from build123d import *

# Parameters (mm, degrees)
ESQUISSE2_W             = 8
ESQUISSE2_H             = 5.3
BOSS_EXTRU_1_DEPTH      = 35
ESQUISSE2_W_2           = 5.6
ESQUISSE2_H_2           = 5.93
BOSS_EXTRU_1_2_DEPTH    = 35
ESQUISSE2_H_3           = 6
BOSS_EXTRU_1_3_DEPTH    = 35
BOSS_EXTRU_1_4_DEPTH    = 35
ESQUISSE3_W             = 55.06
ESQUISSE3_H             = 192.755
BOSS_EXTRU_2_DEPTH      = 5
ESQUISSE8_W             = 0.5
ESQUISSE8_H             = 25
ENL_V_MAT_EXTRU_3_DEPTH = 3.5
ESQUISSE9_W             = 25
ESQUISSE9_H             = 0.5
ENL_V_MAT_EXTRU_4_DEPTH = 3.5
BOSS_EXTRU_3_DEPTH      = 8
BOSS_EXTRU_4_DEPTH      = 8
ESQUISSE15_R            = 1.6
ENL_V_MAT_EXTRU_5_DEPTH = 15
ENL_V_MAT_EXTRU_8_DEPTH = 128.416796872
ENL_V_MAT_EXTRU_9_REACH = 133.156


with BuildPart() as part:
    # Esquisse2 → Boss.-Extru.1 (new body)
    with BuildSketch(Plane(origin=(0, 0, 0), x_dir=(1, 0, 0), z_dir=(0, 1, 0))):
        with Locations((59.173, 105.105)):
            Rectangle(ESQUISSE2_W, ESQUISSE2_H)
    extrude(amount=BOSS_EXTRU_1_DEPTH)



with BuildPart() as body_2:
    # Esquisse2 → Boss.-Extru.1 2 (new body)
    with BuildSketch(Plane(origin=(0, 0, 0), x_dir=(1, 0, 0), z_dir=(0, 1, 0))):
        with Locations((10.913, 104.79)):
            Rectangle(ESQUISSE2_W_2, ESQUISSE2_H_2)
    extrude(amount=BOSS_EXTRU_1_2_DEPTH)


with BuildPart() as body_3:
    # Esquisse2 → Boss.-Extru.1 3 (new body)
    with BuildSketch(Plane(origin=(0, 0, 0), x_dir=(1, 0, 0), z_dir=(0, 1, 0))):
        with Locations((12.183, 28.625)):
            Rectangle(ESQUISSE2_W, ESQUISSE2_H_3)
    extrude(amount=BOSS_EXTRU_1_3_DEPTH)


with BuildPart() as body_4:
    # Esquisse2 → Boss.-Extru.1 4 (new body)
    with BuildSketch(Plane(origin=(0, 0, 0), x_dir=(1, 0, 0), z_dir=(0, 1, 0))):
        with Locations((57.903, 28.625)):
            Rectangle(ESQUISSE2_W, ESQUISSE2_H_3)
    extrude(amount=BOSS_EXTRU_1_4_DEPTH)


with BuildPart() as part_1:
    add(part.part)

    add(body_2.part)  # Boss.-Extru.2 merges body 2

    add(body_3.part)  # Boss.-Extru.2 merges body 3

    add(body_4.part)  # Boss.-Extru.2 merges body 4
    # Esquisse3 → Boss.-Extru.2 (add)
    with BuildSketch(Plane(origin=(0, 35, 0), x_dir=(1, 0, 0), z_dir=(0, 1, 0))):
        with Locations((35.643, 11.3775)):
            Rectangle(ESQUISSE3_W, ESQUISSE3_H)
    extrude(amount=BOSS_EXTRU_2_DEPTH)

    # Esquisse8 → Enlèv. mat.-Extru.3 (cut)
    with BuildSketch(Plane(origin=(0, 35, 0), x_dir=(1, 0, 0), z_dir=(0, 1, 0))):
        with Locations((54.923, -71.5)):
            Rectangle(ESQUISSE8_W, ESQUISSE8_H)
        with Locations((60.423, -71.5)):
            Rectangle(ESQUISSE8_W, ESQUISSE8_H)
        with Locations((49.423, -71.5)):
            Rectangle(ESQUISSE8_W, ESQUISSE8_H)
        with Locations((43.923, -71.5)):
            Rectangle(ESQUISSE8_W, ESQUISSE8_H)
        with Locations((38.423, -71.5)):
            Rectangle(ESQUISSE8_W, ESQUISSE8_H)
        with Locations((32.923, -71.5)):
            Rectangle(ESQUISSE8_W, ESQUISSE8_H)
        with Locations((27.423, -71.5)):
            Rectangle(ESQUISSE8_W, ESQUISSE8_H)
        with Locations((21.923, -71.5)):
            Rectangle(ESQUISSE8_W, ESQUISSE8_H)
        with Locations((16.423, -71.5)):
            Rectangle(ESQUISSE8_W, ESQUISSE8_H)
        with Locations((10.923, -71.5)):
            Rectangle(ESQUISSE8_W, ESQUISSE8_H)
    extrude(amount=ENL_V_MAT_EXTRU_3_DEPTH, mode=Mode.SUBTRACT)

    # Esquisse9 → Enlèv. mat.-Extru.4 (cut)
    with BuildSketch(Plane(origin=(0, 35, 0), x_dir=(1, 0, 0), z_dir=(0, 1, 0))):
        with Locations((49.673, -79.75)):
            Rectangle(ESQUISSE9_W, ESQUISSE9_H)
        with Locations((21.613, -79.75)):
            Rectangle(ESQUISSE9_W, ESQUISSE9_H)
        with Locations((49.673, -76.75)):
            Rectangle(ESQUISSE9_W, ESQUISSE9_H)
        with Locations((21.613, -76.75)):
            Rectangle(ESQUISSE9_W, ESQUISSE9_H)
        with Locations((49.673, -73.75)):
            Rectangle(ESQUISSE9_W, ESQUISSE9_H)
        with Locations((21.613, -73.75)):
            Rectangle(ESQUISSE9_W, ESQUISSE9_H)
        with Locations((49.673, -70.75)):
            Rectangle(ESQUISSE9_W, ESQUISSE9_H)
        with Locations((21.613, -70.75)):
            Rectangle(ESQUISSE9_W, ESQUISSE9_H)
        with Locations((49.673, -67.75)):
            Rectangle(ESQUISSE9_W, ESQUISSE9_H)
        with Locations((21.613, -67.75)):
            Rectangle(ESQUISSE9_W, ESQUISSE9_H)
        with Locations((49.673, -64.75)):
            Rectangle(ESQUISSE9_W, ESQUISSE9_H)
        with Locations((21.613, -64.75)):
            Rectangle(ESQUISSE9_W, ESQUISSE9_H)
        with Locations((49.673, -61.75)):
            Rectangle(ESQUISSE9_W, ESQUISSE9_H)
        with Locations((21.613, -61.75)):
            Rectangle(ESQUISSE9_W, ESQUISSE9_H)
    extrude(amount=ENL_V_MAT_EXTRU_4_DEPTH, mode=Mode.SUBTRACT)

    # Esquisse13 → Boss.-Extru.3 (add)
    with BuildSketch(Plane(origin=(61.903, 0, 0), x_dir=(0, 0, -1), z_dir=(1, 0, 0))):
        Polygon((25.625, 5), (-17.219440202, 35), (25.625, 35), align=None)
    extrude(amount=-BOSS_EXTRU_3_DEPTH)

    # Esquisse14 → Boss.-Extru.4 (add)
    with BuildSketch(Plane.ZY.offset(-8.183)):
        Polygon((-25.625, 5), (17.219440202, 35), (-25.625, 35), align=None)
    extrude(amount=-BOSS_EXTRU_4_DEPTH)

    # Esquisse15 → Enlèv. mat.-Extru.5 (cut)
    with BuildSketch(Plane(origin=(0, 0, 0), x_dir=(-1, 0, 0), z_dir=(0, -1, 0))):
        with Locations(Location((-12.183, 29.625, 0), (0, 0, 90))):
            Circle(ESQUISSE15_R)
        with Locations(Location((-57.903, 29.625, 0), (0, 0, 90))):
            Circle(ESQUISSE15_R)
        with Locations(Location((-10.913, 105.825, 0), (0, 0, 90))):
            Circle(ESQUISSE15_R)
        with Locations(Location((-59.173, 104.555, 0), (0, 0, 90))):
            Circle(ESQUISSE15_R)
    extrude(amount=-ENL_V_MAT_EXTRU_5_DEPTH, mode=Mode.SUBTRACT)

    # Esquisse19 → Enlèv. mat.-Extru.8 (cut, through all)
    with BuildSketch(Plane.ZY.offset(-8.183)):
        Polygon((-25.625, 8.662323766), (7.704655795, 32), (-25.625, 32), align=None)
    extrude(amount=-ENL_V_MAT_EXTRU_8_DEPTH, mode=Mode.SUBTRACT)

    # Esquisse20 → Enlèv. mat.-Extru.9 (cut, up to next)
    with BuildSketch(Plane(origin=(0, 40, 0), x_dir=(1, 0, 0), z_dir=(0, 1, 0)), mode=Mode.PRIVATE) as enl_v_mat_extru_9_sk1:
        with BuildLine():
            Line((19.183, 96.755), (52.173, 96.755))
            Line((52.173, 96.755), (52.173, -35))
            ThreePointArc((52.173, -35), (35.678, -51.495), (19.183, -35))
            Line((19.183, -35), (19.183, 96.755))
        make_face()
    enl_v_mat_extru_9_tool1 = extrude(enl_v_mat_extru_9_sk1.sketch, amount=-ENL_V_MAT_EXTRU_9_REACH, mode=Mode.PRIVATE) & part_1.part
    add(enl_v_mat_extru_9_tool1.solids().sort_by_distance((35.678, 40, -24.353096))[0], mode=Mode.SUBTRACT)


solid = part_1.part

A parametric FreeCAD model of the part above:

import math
import FreeCAD as App
import Part
import Sketcher

V = App.Vector
Q = App.Units.Quantity

doc = App.newDocument("Part")
body = doc.addObject("PartDesign::Body", "Body")

sketch1 = body.newObject("Sketcher::SketchObject", "Sketch")
sketch1.AttachmentSupport = (doc.getObject("XZ_Plane"), [""])
sketch1.MapMode = "FlatFace"
sketch1.addGeometry(Part.LineSegment(V(55, -108, 0), V(55, -102, 0)), False)
sketch1.addGeometry(Part.LineSegment(V(55, -102, 0), V(63, -102, 0)), False)
sketch1.addGeometry(Part.LineSegment(V(63, -102, 0), V(63, -108, 0)), False)
sketch1.addGeometry(Part.LineSegment(V(63, -108, 0), V(55, -108, 0)), False)
sketch1.addConstraint(Sketcher.Constraint("Coincident", 0, 2, 1, 1))
sketch1.addConstraint(Sketcher.Constraint("Coincident", 1, 2, 2, 1))
sketch1.addConstraint(Sketcher.Constraint("Coincident", 2, 2, 3, 1))
sketch1.addConstraint(Sketcher.Constraint("Coincident", 3, 2, 0, 1))
sketch1.addConstraint(Sketcher.Constraint("Vertical", 0))
sketch1.addConstraint(Sketcher.Constraint("Horizontal", 1))
sketch1.addConstraint(Sketcher.Constraint("Vertical", 2))
sketch1.addConstraint(Sketcher.Constraint("Horizontal", 3))
sketch1.addConstraint(Sketcher.Constraint("DistanceX", 1, 1, 1, 2, 8.0))
sketch1.addConstraint(Sketcher.Constraint("DistanceY", 0, 1, 0, 2, 5.3))
sketch1.addConstraint(Sketcher.Constraint("DistanceX", -1, 1, 0, 2, 55.173))
sketch1.addConstraint(Sketcher.Constraint("DistanceY", 0, 2, -1, 1, 102.455))
pad1 = body.newObject("PartDesign::Pad", "Pad")
pad1.Profile = sketch1
pad1.Length = 35
pad1.Reversed = True
body2 = doc.addObject("PartDesign::Body", "Body001")

sketch2 = body2.newObject("Sketcher::SketchObject", "Sketch001")
sketch2.AttachmentSupport = (doc.getObject("XZ_Plane001"), [""])
sketch2.MapMode = "FlatFace"
sketch2.addGeometry(Part.LineSegment(V(8, -108, 0), V(8, -102, 0)), False)
sketch2.addGeometry(Part.LineSegment(V(8, -102, 0), V(14, -102, 0)), False)
sketch2.addGeometry(Part.LineSegment(V(14, -102, 0), V(14, -108, 0)), False)
sketch2.addGeometry(Part.LineSegment(V(14, -108, 0), V(8, -108, 0)), False)
sketch2.addConstraint(Sketcher.Constraint("Coincident", 0, 2, 1, 1))
sketch2.addConstraint(Sketcher.Constraint("Coincident", 1, 2, 2, 1))
sketch2.addConstraint(Sketcher.Constraint("Coincident", 2, 2, 3, 1))
sketch2.addConstraint(Sketcher.Constraint("Coincident", 3, 2, 0, 1))
sketch2.addConstraint(Sketcher.Constraint("Vertical", 0))
sketch2.addConstraint(Sketcher.Constraint("Horizontal", 1))
sketch2.addConstraint(Sketcher.Constraint("Vertical", 2))
sketch2.addConstraint(Sketcher.Constraint("Horizontal", 3))
sketch2.addConstraint(Sketcher.Constraint("DistanceX", 1, 1, 1, 2, 5.6))
sketch2.addConstraint(Sketcher.Constraint("DistanceY", 0, 1, 0, 2, 5.93))
sketch2.addConstraint(Sketcher.Constraint("DistanceX", -1, 1, 0, 2, 8.113))
sketch2.addConstraint(Sketcher.Constraint("DistanceY", 0, 2, -1, 1, 101.825))
pad2 = body2.newObject("PartDesign::Pad", "Pad001")
pad2.Profile = sketch2
pad2.Length = 35
pad2.Reversed = True
body3 = doc.addObject("PartDesign::Body", "Body002")

sketch3 = body3.newObject("Sketcher::SketchObject", "Sketch002")
sketch3.AttachmentSupport = (doc.getObject("XZ_Plane002"), [""])
sketch3.MapMode = "FlatFace"
sketch3.addGeometry(Part.LineSegment(V(8, -32, 0), V(8, -26, 0)), False)
sketch3.addGeometry(Part.LineSegment(V(8, -26, 0), V(16, -26, 0)), False)
sketch3.addGeometry(Part.LineSegment(V(16, -26, 0), V(16, -32, 0)), False)
sketch3.addGeometry(Part.LineSegment(V(16, -32, 0), V(8, -32, 0)), False)
sketch3.addConstraint(Sketcher.Constraint("Coincident", 0, 2, 1, 1))
sketch3.addConstraint(Sketcher.Constraint("Coincident", 1, 2, 2, 1))
sketch3.addConstraint(Sketcher.Constraint("Coincident", 2, 2, 3, 1))
sketch3.addConstraint(Sketcher.Constraint("Coincident", 3, 2, 0, 1))
sketch3.addConstraint(Sketcher.Constraint("Vertical", 0))
sketch3.addConstraint(Sketcher.Constraint("Horizontal", 1))
sketch3.addConstraint(Sketcher.Constraint("Vertical", 2))
sketch3.addConstraint(Sketcher.Constraint("Horizontal", 3))
sketch3.addConstraint(Sketcher.Constraint("DistanceX", 1, 1, 1, 2, 8.0))
sketch3.addConstraint(Sketcher.Constraint("DistanceY", 0, 1, 0, 2, 6.0))
sketch3.addConstraint(Sketcher.Constraint("DistanceX", -1, 1, 0, 2, 8.183))
sketch3.addConstraint(Sketcher.Constraint("DistanceY", 0, 2, -1, 1, 25.625))
pad3 = body3.newObject("PartDesign::Pad", "Pad002")
pad3.Profile = sketch3
pad3.Length = 35
pad3.Reversed = True
body4 = doc.addObject("PartDesign::Body", "Body003")

sketch4 = body4.newObject("Sketcher::SketchObject", "Sketch003")
sketch4.AttachmentSupport = (doc.getObject("XZ_Plane003"), [""])
sketch4.MapMode = "FlatFace"
sketch4.addGeometry(Part.LineSegment(V(54, -32, 0), V(54, -26, 0)), False)
sketch4.addGeometry(Part.LineSegment(V(54, -26, 0), V(62, -26, 0)), False)
sketch4.addGeometry(Part.LineSegment(V(62, -26, 0), V(62, -32, 0)), False)
sketch4.addGeometry(Part.LineSegment(V(62, -32, 0), V(54, -32, 0)), False)
sketch4.addConstraint(Sketcher.Constraint("Coincident", 0, 2, 1, 1))
sketch4.addConstraint(Sketcher.Constraint("Coincident", 1, 2, 2, 1))
sketch4.addConstraint(Sketcher.Constraint("Coincident", 2, 2, 3, 1))
sketch4.addConstraint(Sketcher.Constraint("Coincident", 3, 2, 0, 1))
sketch4.addConstraint(Sketcher.Constraint("Vertical", 0))
sketch4.addConstraint(Sketcher.Constraint("Horizontal", 1))
sketch4.addConstraint(Sketcher.Constraint("Vertical", 2))
sketch4.addConstraint(Sketcher.Constraint("Horizontal", 3))
sketch4.addConstraint(Sketcher.Constraint("DistanceX", 1, 1, 1, 2, 8.0))
sketch4.addConstraint(Sketcher.Constraint("DistanceY", 0, 1, 0, 2, 6.0))
sketch4.addConstraint(Sketcher.Constraint("DistanceX", -1, 1, 0, 2, 53.903))
sketch4.addConstraint(Sketcher.Constraint("DistanceY", 0, 2, -1, 1, 25.625))
pad4 = body4.newObject("PartDesign::Pad", "Pad003")
pad4.Profile = sketch4
pad4.Length = 35
pad4.Reversed = True
body.AllowCompound = True
doc.recompute()

boolean = body.newObject("PartDesign::Boolean", "Boolean")
boolean.Type = "Fuse"
boolean.addObjects([body2])
doc.recompute()

boolean2 = body.newObject("PartDesign::Boolean", "Boolean001")
boolean2.Type = "Fuse"
boolean2.addObjects([body3])
doc.recompute()

boolean3 = body.newObject("PartDesign::Boolean", "Boolean002")
boolean3.Type = "Fuse"
boolean3.addObjects([body4])

sketch5 = body.newObject("Sketcher::SketchObject", "Sketch004")
sketch5.AttachmentSupport = (doc.getObject("XZ_Plane"), [""])
sketch5.MapMode = "FlatFace"
sketch5.AttachmentOffset = App.Placement(V(0, 0, -35), App.Rotation())
sketch5.addGeometry(Part.LineSegment(V(8, -108, 0), V(8, 85, 0)), False)
sketch5.addGeometry(Part.LineSegment(V(8, 85, 0), V(63, 85, 0)), False)
sketch5.addGeometry(Part.LineSegment(V(63, 85, 0), V(63, -108, 0)), False)
sketch5.addGeometry(Part.LineSegment(V(63, -108, 0), V(8, -108, 0)), False)
sketch5.addConstraint(Sketcher.Constraint("Coincident", 0, 2, 1, 1))
sketch5.addConstraint(Sketcher.Constraint("Coincident", 1, 2, 2, 1))
sketch5.addConstraint(Sketcher.Constraint("Coincident", 2, 2, 3, 1))
sketch5.addConstraint(Sketcher.Constraint("Coincident", 3, 2, 0, 1))
sketch5.addConstraint(Sketcher.Constraint("Vertical", 0))
sketch5.addConstraint(Sketcher.Constraint("Horizontal", 1))
sketch5.addConstraint(Sketcher.Constraint("Vertical", 2))
sketch5.addConstraint(Sketcher.Constraint("Horizontal", 3))
sketch5.addConstraint(Sketcher.Constraint("DistanceY", -1, 1, 0, 2, 85.0))
sketch5.addConstraint(Sketcher.Constraint("DistanceX", 1, 1, 1, 2, 55.06))
sketch5.addConstraint(Sketcher.Constraint("DistanceY", 0, 1, 0, 2, 192.755))
sketch5.addConstraint(Sketcher.Constraint("DistanceX", -1, 1, 0, 2, 8.113))
pad5 = body.newObject("PartDesign::Pad", "Pad004")
pad5.Profile = sketch5
pad5.Length = 5
pad5.Reversed = True

sketch6 = body.newObject("Sketcher::SketchObject", "Sketch005")
sketch6.AttachmentSupport = (doc.getObject("XZ_Plane"), [""])
sketch6.MapMode = "FlatFace"
sketch6.AttachmentOffset = App.Placement(V(0, 0, -35), App.Rotation())
sketch6.addGeometry(Part.LineSegment(V(54.7, 59, 0), V(54.7, 84, 0)), False)
sketch6.addGeometry(Part.LineSegment(V(54.7, 84, 0), V(55.2, 84, 0)), False)
sketch6.addGeometry(Part.LineSegment(V(55.2, 84, 0), V(55.2, 59, 0)), False)
sketch6.addGeometry(Part.LineSegment(V(55.2, 59, 0), V(54.7, 59, 0)), False)
sketch6.addGeometry(Part.LineSegment(V(60.2, 59, 0), V(60.2, 84, 0)), False)
sketch6.addGeometry(Part.LineSegment(V(60.2, 84, 0), V(60.7, 84, 0)), False)
sketch6.addGeometry(Part.LineSegment(V(60.7, 84, 0), V(60.7, 59, 0)), False)
sketch6.addGeometry(Part.LineSegment(V(60.7, 59, 0), V(60.2, 59, 0)), False)
sketch6.addGeometry(Part.LineSegment(V(49.2, 59, 0), V(49.2, 84, 0)), False)
sketch6.addGeometry(Part.LineSegment(V(49.2, 84, 0), V(49.7, 84, 0)), False)
sketch6.addGeometry(Part.LineSegment(V(49.7, 84, 0), V(49.7, 59, 0)), False)
sketch6.addGeometry(Part.LineSegment(V(49.7, 59, 0), V(49.2, 59, 0)), False)
sketch6.addGeometry(Part.LineSegment(V(43.7, 59, 0), V(43.7, 84, 0)), False)
sketch6.addGeometry(Part.LineSegment(V(43.7, 84, 0), V(44.2, 84, 0)), False)
sketch6.addGeometry(Part.LineSegment(V(44.2, 84, 0), V(44.2, 59, 0)), False)
sketch6.addGeometry(Part.LineSegment(V(44.2, 59, 0), V(43.7, 59, 0)), False)
sketch6.addGeometry(Part.LineSegment(V(38.2, 59, 0), V(38.2, 84, 0)), False)
sketch6.addGeometry(Part.LineSegment(V(38.2, 84, 0), V(38.7, 84, 0)), False)
sketch6.addGeometry(Part.LineSegment(V(38.7, 84, 0), V(38.7, 59, 0)), False)
sketch6.addGeometry(Part.LineSegment(V(38.7, 59, 0), V(38.2, 59, 0)), False)
sketch6.addGeometry(Part.LineSegment(V(32.7, 59, 0), V(32.7, 84, 0)), False)
sketch6.addGeometry(Part.LineSegment(V(32.7, 84, 0), V(33.2, 84, 0)), False)
sketch6.addGeometry(Part.LineSegment(V(33.2, 84, 0), V(33.2, 59, 0)), False)
sketch6.addGeometry(Part.LineSegment(V(33.2, 59, 0), V(32.7, 59, 0)), False)
sketch6.addGeometry(Part.LineSegment(V(27.2, 59, 0), V(27.2, 84, 0)), False)
sketch6.addGeometry(Part.LineSegment(V(27.2, 84, 0), V(27.7, 84, 0)), False)
sketch6.addGeometry(Part.LineSegment(V(27.7, 84, 0), V(27.7, 59, 0)), False)
sketch6.addGeometry(Part.LineSegment(V(27.7, 59, 0), V(27.2, 59, 0)), False)
sketch6.addGeometry(Part.LineSegment(V(21.7, 59, 0), V(21.7, 84, 0)), False)
sketch6.addGeometry(Part.LineSegment(V(21.7, 84, 0), V(22.2, 84, 0)), False)
sketch6.addGeometry(Part.LineSegment(V(22.2, 84, 0), V(22.2, 59, 0)), False)
sketch6.addGeometry(Part.LineSegment(V(22.2, 59, 0), V(21.7, 59, 0)), False)
sketch6.addGeometry(Part.LineSegment(V(16.2, 59, 0), V(16.2, 84, 0)), False)
sketch6.addGeometry(Part.LineSegment(V(16.2, 84, 0), V(16.7, 84, 0)), False)
sketch6.addGeometry(Part.LineSegment(V(16.7, 84, 0), V(16.7, 59, 0)), False)
sketch6.addGeometry(Part.LineSegment(V(16.7, 59, 0), V(16.2, 59, 0)), False)
sketch6.addGeometry(Part.LineSegment(V(10.7, 59, 0), V(10.7, 84, 0)), False)
sketch6.addGeometry(Part.LineSegment(V(10.7, 84, 0), V(11.2, 84, 0)), False)
sketch6.addGeometry(Part.LineSegment(V(11.2, 84, 0), V(11.2, 59, 0)), False)
sketch6.addGeometry(Part.LineSegment(V(11.2, 59, 0), V(10.7, 59, 0)), False)
sketch6.addConstraint(Sketcher.Constraint("Coincident", 0, 2, 1, 1))
sketch6.addConstraint(Sketcher.Constraint("Coincident", 1, 2, 2, 1))
sketch6.addConstraint(Sketcher.Constraint("Coincident", 2, 2, 3, 1))
sketch6.addConstraint(Sketcher.Constraint("Coincident", 3, 2, 0, 1))
sketch6.addConstraint(Sketcher.Constraint("Coincident", 4, 2, 5, 1))
sketch6.addConstraint(Sketcher.Constraint("Coincident", 5, 2, 6, 1))
sketch6.addConstraint(Sketcher.Constraint("Coincident", 6, 2, 7, 1))
sketch6.addConstraint(Sketcher.Constraint("Coincident", 7, 2, 4, 1))
sketch6.addConstraint(Sketcher.Constraint("Coincident", 8, 2, 9, 1))
sketch6.addConstraint(Sketcher.Constraint("Coincident", 9, 2, 10, 1))
sketch6.addConstraint(Sketcher.Constraint("Coincident", 10, 2, 11, 1))
sketch6.addConstraint(Sketcher.Constraint("Coincident", 11, 2, 8, 1))
sketch6.addConstraint(Sketcher.Constraint("Coincident", 12, 2, 13, 1))
sketch6.addConstraint(Sketcher.Constraint("Coincident", 13, 2, 14, 1))
sketch6.addConstraint(Sketcher.Constraint("Coincident", 14, 2, 15, 1))
sketch6.addConstraint(Sketcher.Constraint("Coincident", 15, 2, 12, 1))
sketch6.addConstraint(Sketcher.Constraint("Coincident", 16, 2, 17, 1))
sketch6.addConstraint(Sketcher.Constraint("Coincident", 17, 2, 18, 1))
sketch6.addConstraint(Sketcher.Constraint("Coincident", 18, 2, 19, 1))
sketch6.addConstraint(Sketcher.Constraint("Coincident", 19, 2, 16, 1))
sketch6.addConstraint(Sketcher.Constraint("Coincident", 20, 2, 21, 1))
sketch6.addConstraint(Sketcher.Constraint("Coincident", 21, 2, 22, 1))
sketch6.addConstraint(Sketcher.Constraint("Coincident", 22, 2, 23, 1))
sketch6.addConstraint(Sketcher.Constraint("Coincident", 23, 2, 20, 1))
sketch6.addConstraint(Sketcher.Constraint("Coincident", 24, 2, 25, 1))
sketch6.addConstraint(Sketcher.Constraint("Coincident", 25, 2, 26, 1))
sketch6.addConstraint(Sketcher.Constraint("Coincident", 26, 2, 27, 1))
sketch6.addConstraint(Sketcher.Constraint("Coincident", 27, 2, 24, 1))
sketch6.addConstraint(Sketcher.Constraint("Coincident", 28, 2, 29, 1))
sketch6.addConstraint(Sketcher.Constraint("Coincident", 29, 2, 30, 1))
sketch6.addConstraint(Sketcher.Constraint("Coincident", 30, 2, 31, 1))
sketch6.addConstraint(Sketcher.Constraint("Coincident", 31, 2, 28, 1))
sketch6.addConstraint(Sketcher.Constraint("Coincident", 32, 2, 33, 1))
sketch6.addConstraint(Sketcher.Constraint("Coincident", 33, 2, 34, 1))
sketch6.addConstraint(Sketcher.Constraint("Coincident", 34, 2, 35, 1))
sketch6.addConstraint(Sketcher.Constraint("Coincident", 35, 2, 32, 1))
sketch6.addConstraint(Sketcher.Constraint("Coincident", 36, 2, 37, 1))
sketch6.addConstraint(Sketcher.Constraint("Coincident", 37, 2, 38, 1))
sketch6.addConstraint(Sketcher.Constraint("Coincident", 38, 2, 39, 1))
sketch6.addConstraint(Sketcher.Constraint("Coincident", 39, 2, 36, 1))
sketch6.addConstraint(Sketcher.Constraint("Vertical", 0))
sketch6.addConstraint(Sketcher.Constraint("Horizontal", 1))
sketch6.addConstraint(Sketcher.Constraint("Vertical", 2))
sketch6.addConstraint(Sketcher.Constraint("Horizontal", 3))
sketch6.addConstraint(Sketcher.Constraint("Vertical", 4))
sketch6.addConstraint(Sketcher.Constraint("Horizontal", 5))
sketch6.addConstraint(Sketcher.Constraint("Vertical", 6))
sketch6.addConstraint(Sketcher.Constraint("Horizontal", 7))
sketch6.addConstraint(Sketcher.Constraint("Vertical", 8))
sketch6.addConstraint(Sketcher.Constraint("Horizontal", 9))
sketch6.addConstraint(Sketcher.Constraint("Vertical", 10))
sketch6.addConstraint(Sketcher.Constraint("Horizontal", 11))
sketch6.addConstraint(Sketcher.Constraint("Vertical", 12))
sketch6.addConstraint(Sketcher.Constraint("Horizontal", 13))
sketch6.addConstraint(Sketcher.Constraint("Vertical", 14))
sketch6.addConstraint(Sketcher.Constraint("Horizontal", 15))
sketch6.addConstraint(Sketcher.Constraint("Vertical", 16))
sketch6.addConstraint(Sketcher.Constraint("Horizontal", 17))
sketch6.addConstraint(Sketcher.Constraint("Vertical", 18))
sketch6.addConstraint(Sketcher.Constraint("Horizontal", 19))
sketch6.addConstraint(Sketcher.Constraint("Vertical", 20))
sketch6.addConstraint(Sketcher.Constraint("Horizontal", 21))
sketch6.addConstraint(Sketcher.Constraint("Vertical", 22))
sketch6.addConstraint(Sketcher.Constraint("Horizontal", 23))
sketch6.addConstraint(Sketcher.Constraint("Vertical", 24))
sketch6.addConstraint(Sketcher.Constraint("Horizontal", 25))
sketch6.addConstraint(Sketcher.Constraint("Vertical", 26))
sketch6.addConstraint(Sketcher.Constraint("Horizontal", 27))
sketch6.addConstraint(Sketcher.Constraint("Vertical", 28))
sketch6.addConstraint(Sketcher.Constraint("Horizontal", 29))
sketch6.addConstraint(Sketcher.Constraint("Vertical", 30))
sketch6.addConstraint(Sketcher.Constraint("Horizontal", 31))
sketch6.addConstraint(Sketcher.Constraint("Vertical", 32))
sketch6.addConstraint(Sketcher.Constraint("Horizontal", 33))
sketch6.addConstraint(Sketcher.Constraint("Vertical", 34))
sketch6.addConstraint(Sketcher.Constraint("Horizontal", 35))
sketch6.addConstraint(Sketcher.Constraint("Vertical", 36))
sketch6.addConstraint(Sketcher.Constraint("Horizontal", 37))
sketch6.addConstraint(Sketcher.Constraint("Vertical", 38))
sketch6.addConstraint(Sketcher.Constraint("Horizontal", 39))
sketch6.addConstraint(Sketcher.Constraint("Horizontal", 1, 2, 4, 2))
sketch6.addConstraint(Sketcher.Constraint("Horizontal", 3, 2, 6, 2))
sketch6.addConstraint(Sketcher.Constraint("Horizontal", 5, 2, 8, 2))
sketch6.addConstraint(Sketcher.Constraint("Horizontal", 7, 2, 10, 2))
sketch6.addConstraint(Sketcher.Constraint("Horizontal", 9, 2, 12, 2))
sketch6.addConstraint(Sketcher.Constraint("Horizontal", 11, 2, 14, 2))
sketch6.addConstraint(Sketcher.Constraint("Horizontal", 13, 2, 16, 2))
sketch6.addConstraint(Sketcher.Constraint("Horizontal", 15, 2, 18, 2))
sketch6.addConstraint(Sketcher.Constraint("Horizontal", 17, 2, 20, 2))
sketch6.addConstraint(Sketcher.Constraint("Horizontal", 19, 2, 22, 2))
sketch6.addConstraint(Sketcher.Constraint("Horizontal", 21, 2, 24, 2))
sketch6.addConstraint(Sketcher.Constraint("Horizontal", 23, 2, 26, 2))
sketch6.addConstraint(Sketcher.Constraint("Horizontal", 25, 2, 28, 2))
sketch6.addConstraint(Sketcher.Constraint("Horizontal", 27, 2, 30, 2))
sketch6.addConstraint(Sketcher.Constraint("Horizontal", 29, 2, 32, 2))
sketch6.addConstraint(Sketcher.Constraint("Horizontal", 31, 2, 34, 2))
sketch6.addConstraint(Sketcher.Constraint("Horizontal", 33, 2, 36, 2))
sketch6.addConstraint(Sketcher.Constraint("Horizontal", 35, 2, 38, 2))
sketch6.addConstraint(Sketcher.Constraint("Equal", 3, 5))
sketch6.addConstraint(Sketcher.Constraint("Equal", 7, 9))
sketch6.addConstraint(Sketcher.Constraint("Equal", 11, 13))
sketch6.addConstraint(Sketcher.Constraint("Equal", 15, 17))
sketch6.addConstraint(Sketcher.Constraint("Equal", 19, 21))
sketch6.addConstraint(Sketcher.Constraint("Equal", 23, 25))
sketch6.addConstraint(Sketcher.Constraint("Equal", 27, 29))
sketch6.addConstraint(Sketcher.Constraint("Equal", 31, 33))
sketch6.addConstraint(Sketcher.Constraint("Equal", 35, 37))
sketch6.addConstraint(Sketcher.Constraint("DistanceY", 0, 1, 0, 2, 25.0))
sketch6.addConstraint(Sketcher.Constraint("DistanceX", 1, 1, 1, 2, 0.5))
sketch6.addConstraint(Sketcher.Constraint("DistanceY", -1, 1, 0, 2, 84.0))
sketch6.addConstraint(Sketcher.Constraint("DistanceX", 1, 2, 4, 2, 5.0))
sketch6.addConstraint(Sketcher.Constraint("DistanceX", 8, 2, 1, 2, 6.0))
sketch6.addConstraint(Sketcher.Constraint("DistanceX", 12, 2, 9, 2, 6.0))
sketch6.addConstraint(Sketcher.Constraint("DistanceX", 16, 2, 13, 2, 6.0))
sketch6.addConstraint(Sketcher.Constraint("DistanceX", 20, 2, 17, 2, 6.0))
sketch6.addConstraint(Sketcher.Constraint("DistanceX", 24, 2, 21, 2, 6.0))
sketch6.addConstraint(Sketcher.Constraint("DistanceX", 28, 2, 25, 2, 6.0))
sketch6.addConstraint(Sketcher.Constraint("DistanceX", 32, 2, 29, 2, 6.0))
sketch6.addConstraint(Sketcher.Constraint("DistanceX", 36, 2, 33, 2, 6.0))
sketch6.addConstraint(Sketcher.Constraint("DistanceX", -1, 1, 0, 2, 54.673))
pocket1 = body.newObject("PartDesign::Pocket", "Pocket")
pocket1.Profile = sketch6
pocket1.Length = 3.5

sketch7 = body.newObject("Sketcher::SketchObject", "Sketch006")
sketch7.AttachmentSupport = (doc.getObject("XZ_Plane"), [""])
sketch7.MapMode = "FlatFace"
sketch7.AttachmentOffset = App.Placement(V(0, 0, -35), App.Rotation())
sketch7.addGeometry(Part.LineSegment(V(37.2, 79.5, 0), V(37.2, 80, 0)), False)
sketch7.addGeometry(Part.LineSegment(V(37.2, 80, 0), V(62.2, 80, 0)), False)
sketch7.addGeometry(Part.LineSegment(V(62.2, 80, 0), V(62.2, 79.5, 0)), False)
sketch7.addGeometry(Part.LineSegment(V(62.2, 79.5, 0), V(37.2, 79.5, 0)), False)
sketch7.addGeometry(Part.LineSegment(V(9.1, 79.5, 0), V(9.1, 80, 0)), False)
sketch7.addGeometry(Part.LineSegment(V(9.1, 80, 0), V(34.1, 80, 0)), False)
sketch7.addGeometry(Part.LineSegment(V(34.1, 80, 0), V(34.1, 79.5, 0)), False)
sketch7.addGeometry(Part.LineSegment(V(34.1, 79.5, 0), V(9.1, 79.5, 0)), False)
sketch7.addGeometry(Part.LineSegment(V(37.2, 76.5, 0), V(37.2, 77, 0)), False)
sketch7.addGeometry(Part.LineSegment(V(37.2, 77, 0), V(62.2, 77, 0)), False)
sketch7.addGeometry(Part.LineSegment(V(62.2, 77, 0), V(62.2, 76.5, 0)), False)
sketch7.addGeometry(Part.LineSegment(V(62.2, 76.5, 0), V(37.2, 76.5, 0)), False)
sketch7.addGeometry(Part.LineSegment(V(9.1, 76.5, 0), V(9.1, 77, 0)), False)
sketch7.addGeometry(Part.LineSegment(V(9.1, 77, 0), V(34.1, 77, 0)), False)
sketch7.addGeometry(Part.LineSegment(V(34.1, 77, 0), V(34.1, 76.5, 0)), False)
sketch7.addGeometry(Part.LineSegment(V(34.1, 76.5, 0), V(9.1, 76.5, 0)), False)
sketch7.addGeometry(Part.LineSegment(V(37.2, 73.5, 0), V(37.2, 74, 0)), False)
sketch7.addGeometry(Part.LineSegment(V(37.2, 74, 0), V(62.2, 74, 0)), False)
sketch7.addGeometry(Part.LineSegment(V(62.2, 74, 0), V(62.2, 73.5, 0)), False)
sketch7.addGeometry(Part.LineSegment(V(62.2, 73.5, 0), V(37.2, 73.5, 0)), False)
sketch7.addGeometry(Part.LineSegment(V(9.1, 73.5, 0), V(9.1, 74, 0)), False)
sketch7.addGeometry(Part.LineSegment(V(9.1, 74, 0), V(34.1, 74, 0)), False)
sketch7.addGeometry(Part.LineSegment(V(34.1, 74, 0), V(34.1, 73.5, 0)), False)
sketch7.addGeometry(Part.LineSegment(V(34.1, 73.5, 0), V(9.1, 73.5, 0)), False)
sketch7.addGeometry(Part.LineSegment(V(37.2, 70.5, 0), V(37.2, 71, 0)), False)
sketch7.addGeometry(Part.LineSegment(V(37.2, 71, 0), V(62.2, 71, 0)), False)
sketch7.addGeometry(Part.LineSegment(V(62.2, 71, 0), V(62.2, 70.5, 0)), False)
sketch7.addGeometry(Part.LineSegment(V(62.2, 70.5, 0), V(37.2, 70.5, 0)), False)
sketch7.addGeometry(Part.LineSegment(V(9.1, 70.5, 0), V(9.1, 71, 0)), False)
sketch7.addGeometry(Part.LineSegment(V(9.1, 71, 0), V(34.1, 71, 0)), False)
sketch7.addGeometry(Part.LineSegment(V(34.1, 71, 0), V(34.1, 70.5, 0)), False)
sketch7.addGeometry(Part.LineSegment(V(34.1, 70.5, 0), V(9.1, 70.5, 0)), False)
sketch7.addGeometry(Part.LineSegment(V(37.2, 67.5, 0), V(37.2, 68, 0)), False)
sketch7.addGeometry(Part.LineSegment(V(37.2, 68, 0), V(62.2, 68, 0)), False)
sketch7.addGeometry(Part.LineSegment(V(62.2, 68, 0), V(62.2, 67.5, 0)), False)
sketch7.addGeometry(Part.LineSegment(V(62.2, 67.5, 0), V(37.2, 67.5, 0)), False)
sketch7.addGeometry(Part.LineSegment(V(9.1, 67.5, 0), V(9.1, 68, 0)), False)
sketch7.addGeometry(Part.LineSegment(V(9.1, 68, 0), V(34.1, 68, 0)), False)
sketch7.addGeometry(Part.LineSegment(V(34.1, 68, 0), V(34.1, 67.5, 0)), False)
sketch7.addGeometry(Part.LineSegment(V(34.1, 67.5, 0), V(9.1, 67.5, 0)), False)
sketch7.addGeometry(Part.LineSegment(V(37.2, 64.5, 0), V(37.2, 65, 0)), False)
sketch7.addGeometry(Part.LineSegment(V(37.2, 65, 0), V(62.2, 65, 0)), False)
sketch7.addGeometry(Part.LineSegment(V(62.2, 65, 0), V(62.2, 64.5, 0)), False)
sketch7.addGeometry(Part.LineSegment(V(62.2, 64.5, 0), V(37.2, 64.5, 0)), False)
sketch7.addGeometry(Part.LineSegment(V(9.1, 64.5, 0), V(9.1, 65, 0)), False)
sketch7.addGeometry(Part.LineSegment(V(9.1, 65, 0), V(34.1, 65, 0)), False)
sketch7.addGeometry(Part.LineSegment(V(34.1, 65, 0), V(34.1, 64.5, 0)), False)
sketch7.addGeometry(Part.LineSegment(V(34.1, 64.5, 0), V(9.1, 64.5, 0)), False)
sketch7.addGeometry(Part.LineSegment(V(37.2, 61.5, 0), V(37.2, 62, 0)), False)
sketch7.addGeometry(Part.LineSegment(V(37.2, 62, 0), V(62.2, 62, 0)), False)
sketch7.addGeometry(Part.LineSegment(V(62.2, 62, 0), V(62.2, 61.5, 0)), False)
sketch7.addGeometry(Part.LineSegment(V(62.2, 61.5, 0), V(37.2, 61.5, 0)), False)
sketch7.addGeometry(Part.LineSegment(V(9.1, 61.5, 0), V(9.1, 62, 0)), False)
sketch7.addGeometry(Part.LineSegment(V(9.1, 62, 0), V(34.1, 62, 0)), False)
sketch7.addGeometry(Part.LineSegment(V(34.1, 62, 0), V(34.1, 61.5, 0)), False)
sketch7.addGeometry(Part.LineSegment(V(34.1, 61.5, 0), V(9.1, 61.5, 0)), False)
sketch7.addConstraint(Sketcher.Constraint("Coincident", 0, 2, 1, 1))
sketch7.addConstraint(Sketcher.Constraint("Coincident", 1, 2, 2, 1))
sketch7.addConstraint(Sketcher.Constraint("Coincident", 2, 2, 3, 1))
sketch7.addConstraint(Sketcher.Constraint("Coincident", 3, 2, 0, 1))
sketch7.addConstraint(Sketcher.Constraint("Coincident", 4, 2, 5, 1))
sketch7.addConstraint(Sketcher.Constraint("Coincident", 5, 2, 6, 1))
sketch7.addConstraint(Sketcher.Constraint("Coincident", 6, 2, 7, 1))
sketch7.addConstraint(Sketcher.Constraint("Coincident", 7, 2, 4, 1))
sketch7.addConstraint(Sketcher.Constraint("Coincident", 8, 2, 9, 1))
sketch7.addConstraint(Sketcher.Constraint("Coincident", 9, 2, 10, 1))
sketch7.addConstraint(Sketcher.Constraint("Coincident", 10, 2, 11, 1))
sketch7.addConstraint(Sketcher.Constraint("Coincident", 11, 2, 8, 1))
sketch7.addConstraint(Sketcher.Constraint("Coincident", 12, 2, 13, 1))
sketch7.addConstraint(Sketcher.Constraint("Coincident", 13, 2, 14, 1))
sketch7.addConstraint(Sketcher.Constraint("Coincident", 14, 2, 15, 1))
sketch7.addConstraint(Sketcher.Constraint("Coincident", 15, 2, 12, 1))
sketch7.addConstraint(Sketcher.Constraint("Coincident", 16, 2, 17, 1))
sketch7.addConstraint(Sketcher.Constraint("Coincident", 17, 2, 18, 1))
sketch7.addConstraint(Sketcher.Constraint("Coincident", 18, 2, 19, 1))
sketch7.addConstraint(Sketcher.Constraint("Coincident", 19, 2, 16, 1))
sketch7.addConstraint(Sketcher.Constraint("Coincident", 20, 2, 21, 1))
sketch7.addConstraint(Sketcher.Constraint("Coincident", 21, 2, 22, 1))
sketch7.addConstraint(Sketcher.Constraint("Coincident", 22, 2, 23, 1))
sketch7.addConstraint(Sketcher.Constraint("Coincident", 23, 2, 20, 1))
sketch7.addConstraint(Sketcher.Constraint("Coincident", 24, 2, 25, 1))
sketch7.addConstraint(Sketcher.Constraint("Coincident", 25, 2, 26, 1))
sketch7.addConstraint(Sketcher.Constraint("Coincident", 26, 2, 27, 1))
sketch7.addConstraint(Sketcher.Constraint("Coincident", 27, 2, 24, 1))
sketch7.addConstraint(Sketcher.Constraint("Coincident", 28, 2, 29, 1))
sketch7.addConstraint(Sketcher.Constraint("Coincident", 29, 2, 30, 1))
sketch7.addConstraint(Sketcher.Constraint("Coincident", 30, 2, 31, 1))
sketch7.addConstraint(Sketcher.Constraint("Coincident", 31, 2, 28, 1))
sketch7.addConstraint(Sketcher.Constraint("Coincident", 32, 2, 33, 1))
sketch7.addConstraint(Sketcher.Constraint("Coincident", 33, 2, 34, 1))
sketch7.addConstraint(Sketcher.Constraint("Coincident", 34, 2, 35, 1))
sketch7.addConstraint(Sketcher.Constraint("Coincident", 35, 2, 32, 1))
sketch7.addConstraint(Sketcher.Constraint("Coincident", 36, 2, 37, 1))
sketch7.addConstraint(Sketcher.Constraint("Coincident", 37, 2, 38, 1))
sketch7.addConstraint(Sketcher.Constraint("Coincident", 38, 2, 39, 1))
sketch7.addConstraint(Sketcher.Constraint("Coincident", 39, 2, 36, 1))
sketch7.addConstraint(Sketcher.Constraint("Coincident", 40, 2, 41, 1))
sketch7.addConstraint(Sketcher.Constraint("Coincident", 41, 2, 42, 1))
sketch7.addConstraint(Sketcher.Constraint("Coincident", 42, 2, 43, 1))
sketch7.addConstraint(Sketcher.Constraint("Coincident", 43, 2, 40, 1))
sketch7.addConstraint(Sketcher.Constraint("Coincident", 44, 2, 45, 1))
sketch7.addConstraint(Sketcher.Constraint("Coincident", 45, 2, 46, 1))
sketch7.addConstraint(Sketcher.Constraint("Coincident", 46, 2, 47, 1))
sketch7.addConstraint(Sketcher.Constraint("Coincident", 47, 2, 44, 1))
sketch7.addConstraint(Sketcher.Constraint("Coincident", 48, 2, 49, 1))
sketch7.addConstraint(Sketcher.Constraint("Coincident", 49, 2, 50, 1))
sketch7.addConstraint(Sketcher.Constraint("Coincident", 50, 2, 51, 1))
sketch7.addConstraint(Sketcher.Constraint("Coincident", 51, 2, 48, 1))
sketch7.addConstraint(Sketcher.Constraint("Coincident", 52, 2, 53, 1))
sketch7.addConstraint(Sketcher.Constraint("Coincident", 53, 2, 54, 1))
sketch7.addConstraint(Sketcher.Constraint("Coincident", 54, 2, 55, 1))
sketch7.addConstraint(Sketcher.Constraint("Coincident", 55, 2, 52, 1))
sketch7.addConstraint(Sketcher.Constraint("Vertical", 0))
sketch7.addConstraint(Sketcher.Constraint("Horizontal", 1))
sketch7.addConstraint(Sketcher.Constraint("Vertical", 2))
sketch7.addConstraint(Sketcher.Constraint("Horizontal", 3))
sketch7.addConstraint(Sketcher.Constraint("Vertical", 4))
sketch7.addConstraint(Sketcher.Constraint("Horizontal", 5))
sketch7.addConstraint(Sketcher.Constraint("Vertical", 6))
sketch7.addConstraint(Sketcher.Constraint("Horizontal", 7))
sketch7.addConstraint(Sketcher.Constraint("Vertical", 8))
sketch7.addConstraint(Sketcher.Constraint("Horizontal", 9))
sketch7.addConstraint(Sketcher.Constraint("Vertical", 10))
sketch7.addConstraint(Sketcher.Constraint("Horizontal", 11))
sketch7.addConstraint(Sketcher.Constraint("Vertical", 12))
sketch7.addConstraint(Sketcher.Constraint("Horizontal", 13))
sketch7.addConstraint(Sketcher.Constraint("Vertical", 14))
sketch7.addConstraint(Sketcher.Constraint("Horizontal", 15))
sketch7.addConstraint(Sketcher.Constraint("Vertical", 16))
sketch7.addConstraint(Sketcher.Constraint("Horizontal", 17))
sketch7.addConstraint(Sketcher.Constraint("Vertical", 18))
sketch7.addConstraint(Sketcher.Constraint("Horizontal", 19))
sketch7.addConstraint(Sketcher.Constraint("Vertical", 20))
sketch7.addConstraint(Sketcher.Constraint("Horizontal", 21))
sketch7.addConstraint(Sketcher.Constraint("Vertical", 22))
sketch7.addConstraint(Sketcher.Constraint("Horizontal", 23))
sketch7.addConstraint(Sketcher.Constraint("Vertical", 24))
sketch7.addConstraint(Sketcher.Constraint("Horizontal", 25))
sketch7.addConstraint(Sketcher.Constraint("Vertical", 26))
sketch7.addConstraint(Sketcher.Constraint("Horizontal", 27))
sketch7.addConstraint(Sketcher.Constraint("Vertical", 28))
sketch7.addConstraint(Sketcher.Constraint("Horizontal", 29))
sketch7.addConstraint(Sketcher.Constraint("Vertical", 30))
sketch7.addConstraint(Sketcher.Constraint("Horizontal", 31))
sketch7.addConstraint(Sketcher.Constraint("Vertical", 32))
sketch7.addConstraint(Sketcher.Constraint("Horizontal", 33))
sketch7.addConstraint(Sketcher.Constraint("Vertical", 34))
sketch7.addConstraint(Sketcher.Constraint("Horizontal", 35))
sketch7.addConstraint(Sketcher.Constraint("Vertical", 36))
sketch7.addConstraint(Sketcher.Constraint("Horizontal", 37))
sketch7.addConstraint(Sketcher.Constraint("Vertical", 38))
sketch7.addConstraint(Sketcher.Constraint("Horizontal", 39))
sketch7.addConstraint(Sketcher.Constraint("Vertical", 40))
sketch7.addConstraint(Sketcher.Constraint("Horizontal", 41))
sketch7.addConstraint(Sketcher.Constraint("Vertical", 42))
sketch7.addConstraint(Sketcher.Constraint("Horizontal", 43))
sketch7.addConstraint(Sketcher.Constraint("Vertical", 44))
sketch7.addConstraint(Sketcher.Constraint("Horizontal", 45))
sketch7.addConstraint(Sketcher.Constraint("Vertical", 46))
sketch7.addConstraint(Sketcher.Constraint("Horizontal", 47))
sketch7.addConstraint(Sketcher.Constraint("Vertical", 48))
sketch7.addConstraint(Sketcher.Constraint("Horizontal", 49))
sketch7.addConstraint(Sketcher.Constraint("Vertical", 50))
sketch7.addConstraint(Sketcher.Constraint("Horizontal", 51))
sketch7.addConstraint(Sketcher.Constraint("Vertical", 52))
sketch7.addConstraint(Sketcher.Constraint("Horizontal", 53))
sketch7.addConstraint(Sketcher.Constraint("Vertical", 54))
sketch7.addConstraint(Sketcher.Constraint("Horizontal", 55))
sketch7.addConstraint(Sketcher.Constraint("Horizontal", 1, 2, 4, 2))
sketch7.addConstraint(Sketcher.Constraint("Horizontal", 3, 2, 6, 2))
sketch7.addConstraint(Sketcher.Constraint("Horizontal", 9, 2, 12, 2))
sketch7.addConstraint(Sketcher.Constraint("Horizontal", 11, 2, 14, 2))
sketch7.addConstraint(Sketcher.Constraint("Horizontal", 17, 2, 20, 2))
sketch7.addConstraint(Sketcher.Constraint("Horizontal", 19, 2, 22, 2))
sketch7.addConstraint(Sketcher.Constraint("Horizontal", 25, 2, 28, 2))
sketch7.addConstraint(Sketcher.Constraint("Horizontal", 27, 2, 30, 2))
sketch7.addConstraint(Sketcher.Constraint("Horizontal", 33, 2, 36, 2))
sketch7.addConstraint(Sketcher.Constraint("Horizontal", 35, 2, 38, 2))
sketch7.addConstraint(Sketcher.Constraint("Horizontal", 41, 2, 44, 2))
sketch7.addConstraint(Sketcher.Constraint("Horizontal", 43, 2, 46, 2))
sketch7.addConstraint(Sketcher.Constraint("Horizontal", 49, 2, 52, 2))
sketch7.addConstraint(Sketcher.Constraint("Horizontal", 51, 2, 54, 2))
sketch7.addConstraint(Sketcher.Constraint("Vertical", 3, 2, 8, 2))
sketch7.addConstraint(Sketcher.Constraint("Vertical", 2, 2, 9, 2))
sketch7.addConstraint(Sketcher.Constraint("Vertical", 7, 2, 12, 2))
sketch7.addConstraint(Sketcher.Constraint("Vertical", 6, 2, 13, 2))
sketch7.addConstraint(Sketcher.Constraint("Vertical", 11, 2, 16, 2))
sketch7.addConstraint(Sketcher.Constraint("Vertical", 10, 2, 17, 2))
sketch7.addConstraint(Sketcher.Constraint("Vertical", 15, 2, 20, 2))
sketch7.addConstraint(Sketcher.Constraint("Vertical", 14, 2, 21, 2))
sketch7.addConstraint(Sketcher.Constraint("Vertical", 19, 2, 24, 2))
sketch7.addConstraint(Sketcher.Constraint("Vertical", 18, 2, 25, 2))
sketch7.addConstraint(Sketcher.Constraint("Vertical", 23, 2, 28, 2))
sketch7.addConstraint(Sketcher.Constraint("Vertical", 22, 2, 29, 2))
sketch7.addConstraint(Sketcher.Constraint("Vertical", 27, 2, 32, 2))
sketch7.addConstraint(Sketcher.Constraint("Vertical", 26, 2, 33, 2))
sketch7.addConstraint(Sketcher.Constraint("Vertical", 31, 2, 36, 2))
sketch7.addConstraint(Sketcher.Constraint("Vertical", 30, 2, 37, 2))
sketch7.addConstraint(Sketcher.Constraint("Vertical", 35, 2, 40, 2))
sketch7.addConstraint(Sketcher.Constraint("Vertical", 34, 2, 41, 2))
sketch7.addConstraint(Sketcher.Constraint("Vertical", 39, 2, 44, 2))
sketch7.addConstraint(Sketcher.Constraint("Vertical", 38, 2, 45, 2))
sketch7.addConstraint(Sketcher.Constraint("Vertical", 43, 2, 48, 2))
sketch7.addConstraint(Sketcher.Constraint("Vertical", 42, 2, 49, 2))
sketch7.addConstraint(Sketcher.Constraint("Vertical", 47, 2, 52, 2))
sketch7.addConstraint(Sketcher.Constraint("Vertical", 46, 2, 53, 2))
sketch7.addConstraint(Sketcher.Constraint("Equal", 3, 5))
sketch7.addConstraint(Sketcher.Constraint("Equal", 6, 8))
sketch7.addConstraint(Sketcher.Constraint("Equal", 14, 16))
sketch7.addConstraint(Sketcher.Constraint("Equal", 22, 24))
sketch7.addConstraint(Sketcher.Constraint("Equal", 30, 32))
sketch7.addConstraint(Sketcher.Constraint("Equal", 38, 40))
sketch7.addConstraint(Sketcher.Constraint("Equal", 46, 48))
sketch7.addConstraint(Sketcher.Constraint("DistanceX", 1, 1, 1, 2, 25.0))
sketch7.addConstraint(Sketcher.Constraint("DistanceY", 0, 1, 0, 2, 0.5))
sketch7.addConstraint(Sketcher.Constraint("DistanceY", -1, 1, 0, 2, 80.0))
sketch7.addConstraint(Sketcher.Constraint("DistanceY", -1, 1, 8, 2, 77.0))
sketch7.addConstraint(Sketcher.Constraint("DistanceY", -1, 1, 16, 2, 74.0))
sketch7.addConstraint(Sketcher.Constraint("DistanceY", -1, 1, 24, 2, 71.0))
sketch7.addConstraint(Sketcher.Constraint("DistanceY", -1, 1, 32, 2, 68.0))
sketch7.addConstraint(Sketcher.Constraint("DistanceY", -1, 1, 40, 2, 65.0))
sketch7.addConstraint(Sketcher.Constraint("DistanceY", -1, 1, 48, 2, 62.0))
sketch7.addConstraint(Sketcher.Constraint("DistanceX", 4, 2, 0, 2, 28.06))
sketch7.addConstraint(Sketcher.Constraint("DistanceX", -1, 1, 0, 2, 37.173))
pocket2 = body.newObject("PartDesign::Pocket", "Pocket001")
pocket2.Profile = sketch7
pocket2.Length = 3.5

sketch8 = body.newObject("Sketcher::SketchObject", "Sketch007")
sketch8.AttachmentSupport = (doc.getObject("YZ_Plane"), [""])
sketch8.MapMode = "FlatFace"
sketch8.AttachmentOffset = App.Placement(V(0, 0, 61.903), App.Rotation())
sketch8.addGeometry(Part.LineSegment(V(35, 17, 0), V(5, -26, 0)), False)
sketch8.addGeometry(Part.LineSegment(V(5, -26, 0), V(35, -26, 0)), False)
sketch8.addGeometry(Part.LineSegment(V(35, -26, 0), V(35, 17, 0)), False)
sketch8.addConstraint(Sketcher.Constraint("Coincident", 0, 2, 1, 1))
sketch8.addConstraint(Sketcher.Constraint("Coincident", 1, 2, 2, 1))
sketch8.addConstraint(Sketcher.Constraint("Coincident", 2, 2, 0, 1))
sketch8.addConstraint(Sketcher.Constraint("Horizontal", 1))
sketch8.addConstraint(Sketcher.Constraint("Vertical", 2))
sketch8.addConstraint(Sketcher.Constraint("DistanceX", 1, 1, 1, 2, 30.0))
sketch8.addConstraint(Sketcher.Constraint("Angle", 0, Q("-125 deg")))
sketch8.addConstraint(Sketcher.Constraint("DistanceX", -1, 1, 0, 2, 5.0))
sketch8.addConstraint(Sketcher.Constraint("DistanceY", 0, 2, -1, 1, 25.625))
pad6 = body.newObject("PartDesign::Pad", "Pad005")
pad6.Profile = sketch8
pad6.Length = 8
pad6.Reversed = True

sketch9 = body.newObject("Sketcher::SketchObject", "Sketch008")
sketch9.AttachmentSupport = (doc.getObject("YZ_Plane"), [""])
sketch9.MapMode = "FlatFace"
sketch9.AttachmentOffset = App.Placement(V(0, 0, 8.183), App.Rotation())
sketch9.addGeometry(Part.LineSegment(V(5, -26, 0), V(35, 17, 0)), False)
sketch9.addGeometry(Part.LineSegment(V(35, 17, 0), V(35, -26, 0)), False)
sketch9.addGeometry(Part.LineSegment(V(35, -26, 0), V(5, -26, 0)), False)
sketch9.addConstraint(Sketcher.Constraint("Coincident", 0, 2, 1, 1))
sketch9.addConstraint(Sketcher.Constraint("Coincident", 1, 2, 2, 1))
sketch9.addConstraint(Sketcher.Constraint("Coincident", 2, 2, 0, 1))
sketch9.addConstraint(Sketcher.Constraint("Vertical", 1))
sketch9.addConstraint(Sketcher.Constraint("Horizontal", 2))
sketch9.addConstraint(Sketcher.Constraint("DistanceX", 2, 2, 2, 1, 30.0))
sketch9.addConstraint(Sketcher.Constraint("Angle", 0, Q("55 deg")))
sketch9.addConstraint(Sketcher.Constraint("DistanceX", -1, 1, 0, 2, 35.0))
sketch9.addConstraint(Sketcher.Constraint("DistanceY", 1, 2, -1, 1, 25.625))
pad7 = body.newObject("PartDesign::Pad", "Pad006")
pad7.Profile = sketch9
pad7.Length = 8

sketch10 = body.newObject("Sketcher::SketchObject", "Sketch009")
sketch10.AttachmentSupport = (doc.getObject("XZ_Plane"), [""])
sketch10.MapMode = "FlatFace"
sketch10.addGeometry(Part.Circle(V(12.2, -29.6, 0), V(0, 0, 1), 1.6), False)
sketch10.addGeometry(Part.Circle(V(57.9, -29.6, 0), V(0, 0, 1), 1.6), False)
sketch10.addGeometry(Part.Circle(V(10.9, -105.8, 0), V(0, 0, 1), 1.6), False)
sketch10.addGeometry(Part.Circle(V(59.2, -104.6, 0), V(0, 0, 1), 1.6), False)
sketch10.addConstraint(Sketcher.Constraint("Equal", 0, 1))
sketch10.addConstraint(Sketcher.Constraint("Equal", 1, 2))
sketch10.addConstraint(Sketcher.Constraint("Equal", 2, 3))
sketch10.addConstraint(Sketcher.Constraint("Horizontal", 0, 3, 1, 3))
sketch10.addConstraint(Sketcher.Constraint("Diameter", 0, 3.2))
sketch10.addConstraint(Sketcher.Constraint("DistanceY", 2, 3, 0, 3, 76.2))
sketch10.addConstraint(Sketcher.Constraint("DistanceX", 0, 3, 1, 3, 45.72))
sketch10.addConstraint(Sketcher.Constraint("DistanceX", 2, 3, 0, 3, 1.27))
sketch10.addConstraint(Sketcher.Constraint("DistanceX", 2, 3, 3, 3, 48.26))
sketch10.addConstraint(Sketcher.Constraint("DistanceY", 2, 3, 3, 3, 1.27))
sketch10.addConstraint(Sketcher.Constraint("DistanceX", -1, 1, 0, 3, 12.183))
sketch10.addConstraint(Sketcher.Constraint("DistanceY", 0, 3, -1, 1, 29.625))
pocket3 = body.newObject("PartDesign::Pocket", "Pocket002")
pocket3.Profile = sketch10
pocket3.Length = 15

sketch11 = body.newObject("Sketcher::SketchObject", "Sketch010")
sketch11.AttachmentSupport = (doc.getObject("YZ_Plane"), [""])
sketch11.MapMode = "FlatFace"
sketch11.AttachmentOffset = App.Placement(V(0, 0, 8.183), App.Rotation())
sketch11.addGeometry(Part.LineSegment(V(9, -26, 0), V(32, 8, 0)), False)
sketch11.addGeometry(Part.LineSegment(V(32, 8, 0), V(32, -26, 0)), False)
sketch11.addGeometry(Part.LineSegment(V(32, -26, 0), V(9, -26, 0)), False)
sketch11.addConstraint(Sketcher.Constraint("Coincident", 0, 2, 1, 1))
sketch11.addConstraint(Sketcher.Constraint("Coincident", 1, 2, 2, 1))
sketch11.addConstraint(Sketcher.Constraint("Coincident", 2, 2, 0, 1))
sketch11.addConstraint(Sketcher.Constraint("Vertical", 1))
sketch11.addConstraint(Sketcher.Constraint("Horizontal", 2))
sketch11.addConstraint(Sketcher.Constraint("Angle", 0, Q("55 deg")))
sketch11.addConstraint(Sketcher.Constraint("DistanceX", -1, 1, 0, 2, 32.0))
sketch11.addConstraint(Sketcher.Constraint("DistanceY", 1, 2, -1, 1, 25.625))
sketch11.addConstraint(Sketcher.Constraint("DistanceX", 2, 2, 2, 1, 23.337676))
pocket4 = body.newObject("PartDesign::Pocket", "Pocket003")
pocket4.Profile = sketch11
pocket4.Type = "ThroughAll"
pocket4.Reversed = True

sketch12 = body.newObject("Sketcher::SketchObject", "Sketch011")
sketch12.AttachmentSupport = (doc.getObject("XZ_Plane"), [""])
sketch12.MapMode = "FlatFace"
sketch12.AttachmentOffset = App.Placement(V(0, 0, -40), App.Rotation())
sketch12.addGeometry(Part.LineSegment(V(52, -97, 0), V(19, -97, 0)), False)
sketch12.addGeometry(Part.LineSegment(V(19, -97, 0), V(19, 35, 0)), False)
sketch12.addGeometry(Part.ArcOfCircle(Part.Circle(V(36, 35, 0), V(0, 0, 1), 16), math.radians(0), math.radians(180)), False)
sketch12.addGeometry(Part.LineSegment(V(52, 35, 0), V(52, -97, 0)), False)
sketch12.addConstraint(Sketcher.Constraint("Coincident", 0, 2, 1, 1))
sketch12.addConstraint(Sketcher.Constraint("Tangent", 1, 2, 2, 2))
sketch12.addConstraint(Sketcher.Constraint("Tangent", 2, 1, 3, 1))
sketch12.addConstraint(Sketcher.Constraint("Coincident", 3, 2, 0, 1))
sketch12.addConstraint(Sketcher.Constraint("Horizontal", 0))
sketch12.addConstraint(Sketcher.Constraint("Vertical", 1))
sketch12.addConstraint(Sketcher.Constraint("Vertical", 3))
sketch12.addConstraint(Sketcher.Constraint("DistanceY", -1, 1, 2, 3, 35.0))
sketch12.addConstraint(Sketcher.Constraint("Radius", 2, 16.495))
sketch12.addConstraint(Sketcher.Constraint("DistanceY", 1, 1, 1, 2, 131.755))
sketch12.addConstraint(Sketcher.Constraint("DistanceX", -1, 1, 2, 3, 35.678))
pocket5 = body.newObject("PartDesign::Pocket", "Pocket004")
pocket5.Profile = sketch12
pocket5.Type = "UpToFirst"
pocket5.Reversed = True

doc.recompute()
